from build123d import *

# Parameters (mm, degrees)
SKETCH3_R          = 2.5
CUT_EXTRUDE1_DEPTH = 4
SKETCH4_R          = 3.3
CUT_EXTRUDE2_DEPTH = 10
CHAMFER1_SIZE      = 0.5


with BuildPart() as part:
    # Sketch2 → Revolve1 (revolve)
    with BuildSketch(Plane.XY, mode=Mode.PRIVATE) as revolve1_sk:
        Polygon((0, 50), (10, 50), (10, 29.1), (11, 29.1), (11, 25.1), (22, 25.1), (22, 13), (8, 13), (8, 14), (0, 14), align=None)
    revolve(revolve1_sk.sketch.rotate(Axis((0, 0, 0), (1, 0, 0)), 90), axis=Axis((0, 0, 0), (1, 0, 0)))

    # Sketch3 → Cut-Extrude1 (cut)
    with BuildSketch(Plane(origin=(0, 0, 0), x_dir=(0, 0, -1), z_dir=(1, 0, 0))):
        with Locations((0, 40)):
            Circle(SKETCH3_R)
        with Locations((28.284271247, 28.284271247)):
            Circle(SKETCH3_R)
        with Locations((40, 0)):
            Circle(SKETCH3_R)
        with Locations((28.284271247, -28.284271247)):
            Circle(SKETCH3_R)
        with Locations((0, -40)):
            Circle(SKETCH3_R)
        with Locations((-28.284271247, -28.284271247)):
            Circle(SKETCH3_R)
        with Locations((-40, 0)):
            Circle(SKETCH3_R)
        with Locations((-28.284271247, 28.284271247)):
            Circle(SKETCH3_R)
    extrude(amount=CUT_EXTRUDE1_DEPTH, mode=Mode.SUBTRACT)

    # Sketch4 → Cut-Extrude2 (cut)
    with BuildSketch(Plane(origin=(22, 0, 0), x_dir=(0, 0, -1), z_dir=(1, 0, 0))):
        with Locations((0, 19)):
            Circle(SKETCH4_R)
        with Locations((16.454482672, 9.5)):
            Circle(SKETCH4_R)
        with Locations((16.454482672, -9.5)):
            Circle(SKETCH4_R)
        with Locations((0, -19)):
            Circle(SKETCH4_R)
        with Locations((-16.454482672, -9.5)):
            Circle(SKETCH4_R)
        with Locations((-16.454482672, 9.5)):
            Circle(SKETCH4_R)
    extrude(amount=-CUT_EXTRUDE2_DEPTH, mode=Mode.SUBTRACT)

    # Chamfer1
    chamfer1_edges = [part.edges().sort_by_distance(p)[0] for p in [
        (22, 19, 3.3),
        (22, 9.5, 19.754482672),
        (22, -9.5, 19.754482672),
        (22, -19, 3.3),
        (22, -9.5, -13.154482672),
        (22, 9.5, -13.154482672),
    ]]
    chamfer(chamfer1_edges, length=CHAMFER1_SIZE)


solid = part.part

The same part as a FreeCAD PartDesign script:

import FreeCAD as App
import Part
import Sketcher

V = App.Vector
Q = App.Units.Quantity


def edges_at(feature, points):
    """Names of the edges that pass closest to the given points."""
    edges = feature.Shape.Edges
    near = lambda p: min(range(len(edges)), key=lambda i: edges[i].distToShape(Part.Vertex(*p))[0])
    return sorted({f"Edge{near(p) + 1}" for p in points})


def add_polygon(sketch, points):
    """Adds a closed chain of lines whose ends are joined by coincident constraints."""
    first, n = sketch.GeometryCount, len(points)
    for a, b in zip(points, points[1:] + points[:1]):
        sketch.addGeometry(Part.LineSegment(App.Vector(*a, 0), App.Vector(*b, 0)), False)
    for i in range(n):
        sketch.addConstraint(Sketcher.Constraint("Coincident", first + i, 2, first + (i + 1) % n, 1))

doc = App.newDocument("Part")
body = doc.addObject("PartDesign::Body", "Body")

sketch1 = body.newObject("Sketcher::SketchObject", "Sketch")
sketch1.AttachmentSupport = (doc.getObject("XY_Plane"), [""])
sketch1.MapMode = "FlatFace"
add_polygon(sketch1, [(10, 50), (0, 50), (0, 14), (8, 14), (8, 13), (22, 13), (22, 25.1), (11, 25.1), (11, 29.1), (10, 29.1)])
sketch1.addConstraint(Sketcher.Constraint("Horizontal", 0))
sketch1.addConstraint(Sketcher.Constraint("Vertical", 1))
sketch1.addConstraint(Sketcher.Constraint("Horizontal", 2))
sketch1.addConstraint(Sketcher.Constraint("Vertical", 3))
sketch1.addConstraint(Sketcher.Constraint("Horizontal", 4))
sketch1.addConstraint(Sketcher.Constraint("Vertical", 5))
sketch1.addConstraint(Sketcher.Constraint("Horizontal", 6))
sketch1.addConstraint(Sketcher.Constraint("Vertical", 7))
sketch1.addConstraint(Sketcher.Constraint("Horizontal", 8))
sketch1.addConstraint(Sketcher.Constraint("Vertical", 9))
sketch1.addConstraint(Sketcher.Constraint("PointOnObject", 0, 2, -2))
sketch1.addConstraint(Sketcher.Constraint("Equal", 8, 3))
sketch1.addConstraint(Sketcher.Constraint("DistanceX", 0, 2, 0, 1, Q("10 mm")))
sketch1.addConstraint(Sketcher.Constraint("DistanceX", 2, 1, 2, 2, Q("8 mm")))
sketch1.addConstraint(Sketcher.Constraint("DistanceX", 4, 1, 4, 2, Q("14 mm")))
sketch1.addConstraint(Sketcher.Constraint("DistanceX", 6, 2, 6, 1, Q("11 mm")))
sketch1.addConstraint(Sketcher.Constraint("DistanceY", 1, 2, 1, 1, Q("36 mm")))
sketch1.addConstraint(Sketcher.Constraint("DistanceY", 7, 1, 7, 2, Q("4 mm")))
sketch1.addConstraint(Sketcher.Constraint("DistanceY", 5, 1, 5, 2, Q("12.1 mm")))
sketch1.addConstraint(Sketcher.Constraint("DistanceY", -1, 1, 0, 2, Q("50 mm")))
revolution = body.newObject("PartDesign::Revolution", "Revolution")
revolution.Profile = sketch1
revolution.ReferenceAxis = (sketch1, ["H_Axis"])
revolution.Angle = 360

sketch2 = body.newObject("Sketcher::SketchObject", "Sketch001")
sketch2.AttachmentSupport = (doc.getObject("YZ_Plane"), [""])
sketch2.MapMode = "FlatFace"
sketch2.addGeometry(Part.Circle(V(40, 0, 0), V(0, 0, 1), 2.5), False)
sketch2.addGeometry(Part.Circle(V(28.3, -28.3, 0), V(0, 0, 1), 2.5), False)
sketch2.addGeometry(Part.Circle(V(0, -40, 0), V(0, 0, 1), 2.5), False)
sketch2.addGeometry(Part.Circle(V(-28.3, -28.3, 0), V(0, 0, 1), 2.5), False)
sketch2.addGeometry(Part.Circle(V(-40, 0, 0), V(0, 0, 1), 2.5), False)
sketch2.addGeometry(Part.Circle(V(-28.3, 28.3, 0), V(0, 0, 1), 2.5), False)
sketch2.addGeometry(Part.Circle(V(0, 40, 0), V(0, 0, 1), 2.5), False)
sketch2.addGeometry(Part.Circle(V(28.3, 28.3, 0), V(0, 0, 1), 2.5), False)
sketch2.addConstraint(Sketcher.Constraint("Equal", 0, 1))
sketch2.addConstraint(Sketcher.Constraint("Equal", 1, 2))
sketch2.addConstraint(Sketcher.Constraint("Equal", 2, 3))
sketch2.addConstraint(Sketcher.Constraint("Equal", 3, 4))
sketch2.addConstraint(Sketcher.Constraint("Equal", 4, 5))
sketch2.addConstraint(Sketcher.Constraint("Equal", 5, 6))
sketch2.addConstraint(Sketcher.Constraint("Equal", 6, 7))
sketch2.addConstraint(Sketcher.Constraint("Symmetric", 0, 3, 4, 3, -1, 1))
sketch2.addConstraint(Sketcher.Constraint("Symmetric", 1, 3, 5, 3, -1, 1))
sketch2.addConstraint(Sketcher.Constraint("Symmetric", 2, 3, 6, 3, -1, 1))
sketch2.addConstraint(Sketcher.Constraint("Symmetric", 3, 3, 7, 3, -1, 1))
sketch2.addConstraint(Sketcher.Constraint("Symmetric", 1, 3, 3, 3, -2))
sketch2.addConstraint(Sketcher.Constraint("PointOnObject", 0, 3, -1))
sketch2.addConstraint(Sketcher.Constraint("PointOnObject", 2, 3, -2))
sketch2.addConstraint(Sketcher.Constraint("Diameter", 0, Q("5 mm")))
sketch2.addConstraint(Sketcher.Constraint("DistanceX", -1, 1, 0, 3, Q("40 mm")))
sketch2.addConstraint(Sketcher.Constraint("DistanceY", 2, 3, -1, 1, Q("40 mm")))
sketch2.addConstraint(Sketcher.Constraint("DistanceX", -1, 1, 1, 3, Q("28.284271 mm")))
sketch2.addConstraint(Sketcher.Constraint("DistanceY", 1, 3, -1, 1, Q("28.284271 mm")))
pocket1 = body.newObject("PartDesign::Pocket", "Pocket")
pocket1.Profile = sketch2
pocket1.Length = 4
pocket1.Reversed = True

sketch3 = body.newObject("Sketcher::SketchObject", "Sketch002")
sketch3.AttachmentSupport = (doc.getObject("YZ_Plane"), [""])
sketch3.MapMode = "FlatFace"
sketch3.AttachmentOffset = App.Placement(V(0, 0, 22), App.Rotation())
sketch3.addGeometry(Part.Circle(V(19, 0, 0), V(0, 0, 1), 3.3), False)
sketch3.addGeometry(Part.Circle(V(9.5, -16.5, 0), V(0, 0, 1), 3.3), False)
sketch3.addGeometry(Part.Circle(V(-9.5, -16.5, 0), V(0, 0, 1), 3.3), False)
sketch3.addGeometry(Part.Circle(V(-19, 0, 0), V(0, 0, 1), 3.3), False)
sketch3.addGeometry(Part.Circle(V(-9.5, 16.5, 0), V(0, 0, 1), 3.3), False)
sketch3.addGeometry(Part.Circle(V(9.5, 16.5, 0), V(0, 0, 1), 3.3), False)
sketch3.addConstraint(Sketcher.Constraint("Equal", 0, 1))
sketch3.addConstraint(Sketcher.Constraint("Equal", 1, 2))
sketch3.addConstraint(Sketcher.Constraint("Equal", 2, 3))
sketch3.addConstraint(Sketcher.Constraint("Equal", 3, 4))
sketch3.addConstraint(Sketcher.Constraint("Equal", 4, 5))
sketch3.addConstraint(Sketcher.Constraint("Symmetric", 0, 3, 3, 3, -1, 1))
sketch3.addConstraint(Sketcher.Constraint("Symmetric", 1, 3, 4, 3, -1, 1))
sketch3.addConstraint(Sketcher.Constraint("Symmetric", 2, 3, 5, 3, -1, 1))
sketch3.addConstraint(Sketcher.Constraint("Symmetric", 1, 3, 2, 3, -2))
sketch3.addConstraint(Sketcher.Constraint("PointOnObject", 0, 3, -1))
sketch3.addConstraint(Sketcher.Constraint("Diameter", 0, Q("6.6 mm")))
sketch3.addConstraint(Sketcher.Constraint("DistanceX", -1, 1, 0, 3, Q("19 mm")))
sketch3.addConstraint(Sketcher.Constraint("DistanceX", 2, 3, 1, 3, Q("19 mm")))
sketch3.addConstraint(Sketcher.Constraint("DistanceY", 1, 3, -1, 1, Q("16.454483 mm")))
pocket2 = body.newObject("PartDesign::Pocket", "Pocket001")
pocket2.Profile = sketch3
pocket2.Length = 10
doc.recompute()

chamfer = body.newObject("PartDesign::Chamfer", "Chamfer")
chamfer.Base = (pocket2, edges_at(pocket2, [
    (22, 19, 3.3),
    (22, 9.5, 19.754),
    (22, -9.5, 19.754),
    (22, -19, 3.3),
    (22, -9.5, -13.154),
    (22, 9.5, -13.154),
]))
chamfer.Size = 0.5

doc.recompute()
